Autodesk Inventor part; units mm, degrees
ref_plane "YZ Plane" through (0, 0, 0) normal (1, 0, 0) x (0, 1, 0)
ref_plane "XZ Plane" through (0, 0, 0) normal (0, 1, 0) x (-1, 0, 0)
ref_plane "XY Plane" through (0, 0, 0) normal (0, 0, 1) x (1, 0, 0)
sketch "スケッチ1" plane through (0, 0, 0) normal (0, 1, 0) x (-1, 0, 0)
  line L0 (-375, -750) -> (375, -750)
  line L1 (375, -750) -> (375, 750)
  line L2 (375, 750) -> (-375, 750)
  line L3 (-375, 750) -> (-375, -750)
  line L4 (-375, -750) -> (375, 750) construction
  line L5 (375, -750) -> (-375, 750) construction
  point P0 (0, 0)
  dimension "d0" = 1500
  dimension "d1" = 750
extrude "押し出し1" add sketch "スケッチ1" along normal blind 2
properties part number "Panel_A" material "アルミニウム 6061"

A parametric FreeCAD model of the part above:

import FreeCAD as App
import Part
import Sketcher
from FreeCAD import Vector
Q = App.Units.Quantity


def add_polygon(sketch, points):
    """Adds a closed chain of lines whose ends are joined by coincident constraints."""
    first, n = sketch.GeometryCount, len(points)
    for a, b in zip(points, points[1:] + points[:1]):
        sketch.addGeometry(Part.LineSegment(App.Vector(*a, 0), App.Vector(*b, 0)), False)
    for i in range(n):
        sketch.addConstraint(Sketcher.Constraint("Coincident", first + i, 2, first + (i + 1) % n, 1))

doc = App.newDocument("Part")
body = doc.addObject("PartDesign::Body", "Body")

# Sketch on XZ plane
sketch1 = doc.addObject("Sketcher::SketchObject", "Sketch")
body.addObject(sketch1)
sketch1.AttachmentSupport = (doc.XZ_Plane, [""])
sketch1.MapMode = "FlatFace"
add_polygon(sketch1, [(375, 750), (375, -750), (-375, -750), (-375, 750)])  # lines 0-3
sketch1.addConstraint([
    Sketcher.Constraint("Vertical", 0),
    Sketcher.Constraint("Horizontal", 1),
    Sketcher.Constraint("Vertical", 2),
    Sketcher.Constraint("Horizontal", 3),
    Sketcher.Constraint("Symmetric", 0, 2, 2, 2, -1, 1),
    Sketcher.Constraint("DistanceX", 1, 2, 1, 1, Q("750 mm")),
    Sketcher.Constraint("DistanceY", 0, 2, 0, 1, Q("1500 mm")),
])
pad1 = doc.addObject("PartDesign::Pad", "Pad")
body.addObject(pad1)
pad1.Profile = sketch1
pad1.Length = 2
pad1.Reversed = True

doc.recompute()
